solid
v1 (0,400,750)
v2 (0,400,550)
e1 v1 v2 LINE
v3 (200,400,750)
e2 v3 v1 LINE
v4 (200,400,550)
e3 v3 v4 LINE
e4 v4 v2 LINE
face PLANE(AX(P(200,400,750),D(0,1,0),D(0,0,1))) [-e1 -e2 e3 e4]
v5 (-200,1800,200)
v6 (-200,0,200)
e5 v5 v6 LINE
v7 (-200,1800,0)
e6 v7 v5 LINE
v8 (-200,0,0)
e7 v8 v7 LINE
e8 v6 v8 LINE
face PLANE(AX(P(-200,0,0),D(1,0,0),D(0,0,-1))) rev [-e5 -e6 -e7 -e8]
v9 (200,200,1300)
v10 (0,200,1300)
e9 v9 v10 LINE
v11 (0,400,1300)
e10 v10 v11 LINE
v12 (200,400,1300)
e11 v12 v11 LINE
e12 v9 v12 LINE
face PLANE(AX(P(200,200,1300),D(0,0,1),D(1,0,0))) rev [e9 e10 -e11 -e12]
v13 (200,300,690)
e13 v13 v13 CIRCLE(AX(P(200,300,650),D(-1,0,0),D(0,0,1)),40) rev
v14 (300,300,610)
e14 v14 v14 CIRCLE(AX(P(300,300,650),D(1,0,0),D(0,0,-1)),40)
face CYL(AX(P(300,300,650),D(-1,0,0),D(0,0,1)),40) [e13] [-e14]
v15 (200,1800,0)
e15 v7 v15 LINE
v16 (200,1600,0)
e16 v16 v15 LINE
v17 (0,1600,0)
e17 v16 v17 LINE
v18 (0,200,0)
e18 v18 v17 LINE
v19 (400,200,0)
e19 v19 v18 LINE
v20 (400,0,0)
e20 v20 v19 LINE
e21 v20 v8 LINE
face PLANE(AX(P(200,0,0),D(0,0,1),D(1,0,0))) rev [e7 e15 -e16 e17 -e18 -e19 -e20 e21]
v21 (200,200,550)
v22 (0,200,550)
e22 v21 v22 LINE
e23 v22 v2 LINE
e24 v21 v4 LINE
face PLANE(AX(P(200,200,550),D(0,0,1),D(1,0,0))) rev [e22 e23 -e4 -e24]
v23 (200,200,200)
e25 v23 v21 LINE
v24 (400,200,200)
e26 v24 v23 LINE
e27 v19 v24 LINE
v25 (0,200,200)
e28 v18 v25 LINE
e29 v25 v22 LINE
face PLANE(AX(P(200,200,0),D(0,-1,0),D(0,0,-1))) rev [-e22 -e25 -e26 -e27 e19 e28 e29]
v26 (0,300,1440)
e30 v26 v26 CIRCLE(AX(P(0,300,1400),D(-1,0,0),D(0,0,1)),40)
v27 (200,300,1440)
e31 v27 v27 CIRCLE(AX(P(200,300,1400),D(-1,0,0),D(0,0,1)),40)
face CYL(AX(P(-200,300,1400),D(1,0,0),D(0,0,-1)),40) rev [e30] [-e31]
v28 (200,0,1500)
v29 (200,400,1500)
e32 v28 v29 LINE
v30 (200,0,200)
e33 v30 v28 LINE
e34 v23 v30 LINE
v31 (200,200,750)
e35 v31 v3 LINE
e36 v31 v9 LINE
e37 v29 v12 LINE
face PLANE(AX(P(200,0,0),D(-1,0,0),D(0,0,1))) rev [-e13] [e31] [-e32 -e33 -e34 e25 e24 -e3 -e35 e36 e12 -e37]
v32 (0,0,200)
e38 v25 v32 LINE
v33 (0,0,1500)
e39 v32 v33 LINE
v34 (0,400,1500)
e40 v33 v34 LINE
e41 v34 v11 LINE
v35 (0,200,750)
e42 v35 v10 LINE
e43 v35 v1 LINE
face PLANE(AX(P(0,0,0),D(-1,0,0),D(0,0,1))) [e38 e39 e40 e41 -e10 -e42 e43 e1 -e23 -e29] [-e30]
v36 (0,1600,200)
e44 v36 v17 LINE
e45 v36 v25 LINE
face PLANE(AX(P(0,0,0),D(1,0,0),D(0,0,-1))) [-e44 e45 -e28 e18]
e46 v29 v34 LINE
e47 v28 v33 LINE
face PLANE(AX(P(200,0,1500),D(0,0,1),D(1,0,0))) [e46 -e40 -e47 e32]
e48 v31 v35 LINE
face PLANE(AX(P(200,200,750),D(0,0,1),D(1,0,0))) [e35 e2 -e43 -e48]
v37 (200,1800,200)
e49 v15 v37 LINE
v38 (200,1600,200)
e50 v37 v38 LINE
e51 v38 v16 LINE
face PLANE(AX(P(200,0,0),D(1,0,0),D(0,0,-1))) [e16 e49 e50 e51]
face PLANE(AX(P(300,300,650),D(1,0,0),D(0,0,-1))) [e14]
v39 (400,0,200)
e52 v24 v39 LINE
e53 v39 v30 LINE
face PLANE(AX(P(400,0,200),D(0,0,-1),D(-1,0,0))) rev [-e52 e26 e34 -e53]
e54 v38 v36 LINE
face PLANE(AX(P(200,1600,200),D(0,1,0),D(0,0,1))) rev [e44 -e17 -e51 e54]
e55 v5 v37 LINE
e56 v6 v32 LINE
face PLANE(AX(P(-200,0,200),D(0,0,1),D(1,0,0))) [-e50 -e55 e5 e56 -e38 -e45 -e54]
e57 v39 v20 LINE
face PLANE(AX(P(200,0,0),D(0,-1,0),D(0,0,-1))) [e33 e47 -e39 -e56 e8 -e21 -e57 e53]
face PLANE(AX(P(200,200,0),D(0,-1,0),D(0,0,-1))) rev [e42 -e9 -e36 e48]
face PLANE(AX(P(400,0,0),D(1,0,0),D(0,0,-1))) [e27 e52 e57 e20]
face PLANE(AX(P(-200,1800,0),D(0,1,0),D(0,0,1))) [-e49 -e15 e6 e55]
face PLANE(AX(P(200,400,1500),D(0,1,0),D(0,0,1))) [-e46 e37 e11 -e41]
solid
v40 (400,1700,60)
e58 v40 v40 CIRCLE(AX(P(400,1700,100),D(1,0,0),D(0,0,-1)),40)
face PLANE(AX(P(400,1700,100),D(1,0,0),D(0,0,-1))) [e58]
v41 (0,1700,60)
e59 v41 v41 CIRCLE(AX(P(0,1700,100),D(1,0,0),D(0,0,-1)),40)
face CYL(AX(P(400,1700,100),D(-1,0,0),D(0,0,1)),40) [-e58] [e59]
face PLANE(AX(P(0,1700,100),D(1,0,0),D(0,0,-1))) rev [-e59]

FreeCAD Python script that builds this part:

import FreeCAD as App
import Part
import Sketcher
from FreeCAD import Vector


def add_polygon(sketch, points):
    """Adds a closed chain of lines whose ends are joined by coincident constraints."""
    first, n = sketch.GeometryCount, len(points)
    for a, b in zip(points, points[1:] + points[:1]):
        sketch.addGeometry(Part.LineSegment(App.Vector(*a, 0), App.Vector(*b, 0)), False)
    for i in range(n):
        sketch.addConstraint(Sketcher.Constraint("Coincident", first + i, 2, first + (i + 1) % n, 1))

doc = App.newDocument("Part")
body = doc.addObject("PartDesign::Body", "Body")

# Sketch on YZ plane
sketch1 = doc.addObject("Sketcher::SketchObject", "Sketch")
body.addObject(sketch1)
sketch1.AttachmentSupport = (doc.YZ_Plane, [""])
sketch1.MapMode = "FlatFace"
add_polygon(sketch1, [(0, 1500), (0, 0), (200, 0), (200, 550), (400, 550), (400, 750), (200, 750), (200, 1300), (400, 1300), (400, 1500)])  # lines 0-9
sketch1.addConstraint([
    Sketcher.Constraint("Vertical", 0),
    Sketcher.Constraint("Horizontal", 1),
    Sketcher.Constraint("Vertical", 2),
    Sketcher.Constraint("Horizontal", 3),
    Sketcher.Constraint("Vertical", 4),
    Sketcher.Constraint("Horizontal", 5),
    Sketcher.Constraint("Vertical", 6),
    Sketcher.Constraint("Horizontal", 7),
    Sketcher.Constraint("Vertical", 8),
    Sketcher.Constraint("Horizontal", 9),
    Sketcher.Constraint("Coincident", 0, 2, -1, 1),
    Sketcher.Constraint("Vertical", 2, 2, 5, 2),
    Sketcher.Constraint("Vertical", 4, 2, 7, 2),
    Sketcher.Constraint("Equal", 1, 3),
    Sketcher.Constraint("Equal", 7, 4),
    Sketcher.Constraint("Equal", 2, 6),
    Sketcher.Constraint("Equal", 4, 8),
    Sketcher.Constraint("DistanceX", 1, 1, 1, 2, 200.0),
    Sketcher.Constraint("DistanceY", 0, 2, 0, 1, 1500.0),
])
pad1 = doc.addObject("PartDesign::Pad", "Pad")
body.addObject(pad1)
pad1.Profile = sketch1
pad1.Length = 200

# Sketch on YZ plane
sketch2 = doc.addObject("Sketcher::SketchObject", "Sketch001")
body.addObject(sketch2)
sketch2.AttachmentSupport = (doc.YZ_Plane, [""])
sketch2.MapMode = "FlatFace"
add_polygon(sketch2, [(1800, 200), (0, 200), (0, 0), (1800, 0)])  # lines 0-3
sketch2.addConstraint([
    Sketcher.Constraint("Horizontal", 0),
    Sketcher.Constraint("Vertical", 1),
    Sketcher.Constraint("Horizontal", 2),
    Sketcher.Constraint("Vertical", 3),
    Sketcher.Constraint("Coincident", 1, 2, -1, 1),
    Sketcher.Constraint("DistanceX", 0, 2, 0, 1, 1800.0),
    Sketcher.Constraint("DistanceY", 1, 2, 1, 1, 200.0),
])
pad2 = doc.addObject("PartDesign::Pad", "Pad001")
body.addObject(pad2)
pad2.Profile = sketch2
pad2.Length = 200
pad2.Reversed = True

# Sketch on YZ plane
sketch3 = doc.addObject("Sketcher::SketchObject", "Sketch002")
body.addObject(sketch3)
sketch3.AttachmentSupport = (doc.YZ_Plane, [""])
sketch3.MapMode = "FlatFace"
add_polygon(sketch3, [(1800, 200), (1600, 200), (1600, 0), (1800, 0)])  # lines 0-3
sketch3.addConstraint([
    Sketcher.Constraint("Horizontal", 0),
    Sketcher.Constraint("Vertical", 1),
    Sketcher.Constraint("Horizontal", 2),
    Sketcher.Constraint("Vertical", 3),
    Sketcher.Constraint("PointOnObject", 1, 2, -1),
    Sketcher.Constraint("Equal", 2, 1),
    Sketcher.Constraint("DistanceX", 0, 2, 0, 1, 200.0),
    Sketcher.Constraint("DistanceX", -1, 1, 0, 2, 1600.0),
])
pad3 = doc.addObject("PartDesign::Pad", "Pad002")
body.addObject(pad3)
pad3.Profile = sketch3
pad3.Length = 200

# Sketch on YZ plane
sketch4 = doc.addObject("Sketcher::SketchObject", "Sketch003")
body.addObject(sketch4)
sketch4.AttachmentSupport = (doc.YZ_Plane, [""])
sketch4.MapMode = "FlatFace"
add_polygon(sketch4, [(200, 200), (0, 200), (0, 0), (200, 0)])  # lines 0-3
sketch4.addConstraint([
    Sketcher.Constraint("Horizontal", 0),
    Sketcher.Constraint("Vertical", 1),
    Sketcher.Constraint("Horizontal", 2),
    Sketcher.Constraint("Vertical", 3),
    Sketcher.Constraint("Coincident", 1, 2, -1, 1),
    Sketcher.Constraint("Equal", 2, 1),
    Sketcher.Constraint("DistanceX", 0, 2, 0, 1, 200.0),
])
pad4 = doc.addObject("PartDesign::Pad", "Pad003")
body.addObject(pad4)
pad4.Profile = sketch4
pad4.Length = 400

# Sketch on YZ plane
sketch5 = doc.addObject("Sketcher::SketchObject", "Sketch004")
body.addObject(sketch5)
sketch5.AttachmentSupport = (doc.YZ_Plane, [""])
sketch5.MapMode = "FlatFace"
sketch5.addGeometry(Part.Circle(Vector(300, 650, 0), Vector(0, 0, 1), 40), False)
sketch5.addConstraint([
    Sketcher.Constraint("Diameter", 0, 80.0),
    Sketcher.Constraint("DistanceX", -1, 1, 0, 3, 300.0),
    Sketcher.Constraint("DistanceY", -1, 1, 0, 3, 650.0),
])
pad5 = doc.addObject("PartDesign::Pad", "Pad004")
body.addObject(pad5)
pad5.Profile = sketch5
pad5.Length = 300

# Sketch on YZ plane
sketch6 = doc.addObject("Sketcher::SketchObject", "Sketch005")
body.addObject(sketch6)
sketch6.AttachmentSupport = (doc.YZ_Plane, [""])
sketch6.MapMode = "FlatFace"
sketch6.addGeometry(Part.Circle(Vector(300, 1400, 0), Vector(0, 0, 1), 40), False)
sketch6.addConstraint([
    Sketcher.Constraint("Diameter", 0, 80.0),
    Sketcher.Constraint("DistanceX", -1, 1, 0, 3, 300.0),
    Sketcher.Constraint("DistanceY", -1, 1, 0, 3, 1400.0),
])
pocket1 = doc.addObject("PartDesign::Pocket", "Pocket")
body.addObject(pocket1)
pocket1.Profile = sketch6
pocket1.Type = "ThroughAll"
pocket1.Midplane = True
body2 = doc.addObject("PartDesign::Body", "Body001")

# Sketch on YZ plane
sketch7 = doc.addObject("Sketcher::SketchObject", "Sketch006")
body2.addObject(sketch7)
sketch7.AttachmentSupport = (doc.getObject("YZ_Plane001"), [""])
sketch7.MapMode = "FlatFace"
sketch7.addGeometry(Part.Circle(Vector(1700, 100, 0), Vector(0, 0, 1), 40), False)
sketch7.addConstraint([
    Sketcher.Constraint("Diameter", 0, 80.0),
    Sketcher.Constraint("DistanceX", -1, 1, 0, 3, 1700.0),
    Sketcher.Constraint("DistanceY", -1, 1, 0, 3, 100.0),
])
pad6 = doc.addObject("PartDesign::Pad", "Pad005")
body2.addObject(pad6)
pad6.Profile = sketch7
pad6.Length = 400

doc.recompute()
